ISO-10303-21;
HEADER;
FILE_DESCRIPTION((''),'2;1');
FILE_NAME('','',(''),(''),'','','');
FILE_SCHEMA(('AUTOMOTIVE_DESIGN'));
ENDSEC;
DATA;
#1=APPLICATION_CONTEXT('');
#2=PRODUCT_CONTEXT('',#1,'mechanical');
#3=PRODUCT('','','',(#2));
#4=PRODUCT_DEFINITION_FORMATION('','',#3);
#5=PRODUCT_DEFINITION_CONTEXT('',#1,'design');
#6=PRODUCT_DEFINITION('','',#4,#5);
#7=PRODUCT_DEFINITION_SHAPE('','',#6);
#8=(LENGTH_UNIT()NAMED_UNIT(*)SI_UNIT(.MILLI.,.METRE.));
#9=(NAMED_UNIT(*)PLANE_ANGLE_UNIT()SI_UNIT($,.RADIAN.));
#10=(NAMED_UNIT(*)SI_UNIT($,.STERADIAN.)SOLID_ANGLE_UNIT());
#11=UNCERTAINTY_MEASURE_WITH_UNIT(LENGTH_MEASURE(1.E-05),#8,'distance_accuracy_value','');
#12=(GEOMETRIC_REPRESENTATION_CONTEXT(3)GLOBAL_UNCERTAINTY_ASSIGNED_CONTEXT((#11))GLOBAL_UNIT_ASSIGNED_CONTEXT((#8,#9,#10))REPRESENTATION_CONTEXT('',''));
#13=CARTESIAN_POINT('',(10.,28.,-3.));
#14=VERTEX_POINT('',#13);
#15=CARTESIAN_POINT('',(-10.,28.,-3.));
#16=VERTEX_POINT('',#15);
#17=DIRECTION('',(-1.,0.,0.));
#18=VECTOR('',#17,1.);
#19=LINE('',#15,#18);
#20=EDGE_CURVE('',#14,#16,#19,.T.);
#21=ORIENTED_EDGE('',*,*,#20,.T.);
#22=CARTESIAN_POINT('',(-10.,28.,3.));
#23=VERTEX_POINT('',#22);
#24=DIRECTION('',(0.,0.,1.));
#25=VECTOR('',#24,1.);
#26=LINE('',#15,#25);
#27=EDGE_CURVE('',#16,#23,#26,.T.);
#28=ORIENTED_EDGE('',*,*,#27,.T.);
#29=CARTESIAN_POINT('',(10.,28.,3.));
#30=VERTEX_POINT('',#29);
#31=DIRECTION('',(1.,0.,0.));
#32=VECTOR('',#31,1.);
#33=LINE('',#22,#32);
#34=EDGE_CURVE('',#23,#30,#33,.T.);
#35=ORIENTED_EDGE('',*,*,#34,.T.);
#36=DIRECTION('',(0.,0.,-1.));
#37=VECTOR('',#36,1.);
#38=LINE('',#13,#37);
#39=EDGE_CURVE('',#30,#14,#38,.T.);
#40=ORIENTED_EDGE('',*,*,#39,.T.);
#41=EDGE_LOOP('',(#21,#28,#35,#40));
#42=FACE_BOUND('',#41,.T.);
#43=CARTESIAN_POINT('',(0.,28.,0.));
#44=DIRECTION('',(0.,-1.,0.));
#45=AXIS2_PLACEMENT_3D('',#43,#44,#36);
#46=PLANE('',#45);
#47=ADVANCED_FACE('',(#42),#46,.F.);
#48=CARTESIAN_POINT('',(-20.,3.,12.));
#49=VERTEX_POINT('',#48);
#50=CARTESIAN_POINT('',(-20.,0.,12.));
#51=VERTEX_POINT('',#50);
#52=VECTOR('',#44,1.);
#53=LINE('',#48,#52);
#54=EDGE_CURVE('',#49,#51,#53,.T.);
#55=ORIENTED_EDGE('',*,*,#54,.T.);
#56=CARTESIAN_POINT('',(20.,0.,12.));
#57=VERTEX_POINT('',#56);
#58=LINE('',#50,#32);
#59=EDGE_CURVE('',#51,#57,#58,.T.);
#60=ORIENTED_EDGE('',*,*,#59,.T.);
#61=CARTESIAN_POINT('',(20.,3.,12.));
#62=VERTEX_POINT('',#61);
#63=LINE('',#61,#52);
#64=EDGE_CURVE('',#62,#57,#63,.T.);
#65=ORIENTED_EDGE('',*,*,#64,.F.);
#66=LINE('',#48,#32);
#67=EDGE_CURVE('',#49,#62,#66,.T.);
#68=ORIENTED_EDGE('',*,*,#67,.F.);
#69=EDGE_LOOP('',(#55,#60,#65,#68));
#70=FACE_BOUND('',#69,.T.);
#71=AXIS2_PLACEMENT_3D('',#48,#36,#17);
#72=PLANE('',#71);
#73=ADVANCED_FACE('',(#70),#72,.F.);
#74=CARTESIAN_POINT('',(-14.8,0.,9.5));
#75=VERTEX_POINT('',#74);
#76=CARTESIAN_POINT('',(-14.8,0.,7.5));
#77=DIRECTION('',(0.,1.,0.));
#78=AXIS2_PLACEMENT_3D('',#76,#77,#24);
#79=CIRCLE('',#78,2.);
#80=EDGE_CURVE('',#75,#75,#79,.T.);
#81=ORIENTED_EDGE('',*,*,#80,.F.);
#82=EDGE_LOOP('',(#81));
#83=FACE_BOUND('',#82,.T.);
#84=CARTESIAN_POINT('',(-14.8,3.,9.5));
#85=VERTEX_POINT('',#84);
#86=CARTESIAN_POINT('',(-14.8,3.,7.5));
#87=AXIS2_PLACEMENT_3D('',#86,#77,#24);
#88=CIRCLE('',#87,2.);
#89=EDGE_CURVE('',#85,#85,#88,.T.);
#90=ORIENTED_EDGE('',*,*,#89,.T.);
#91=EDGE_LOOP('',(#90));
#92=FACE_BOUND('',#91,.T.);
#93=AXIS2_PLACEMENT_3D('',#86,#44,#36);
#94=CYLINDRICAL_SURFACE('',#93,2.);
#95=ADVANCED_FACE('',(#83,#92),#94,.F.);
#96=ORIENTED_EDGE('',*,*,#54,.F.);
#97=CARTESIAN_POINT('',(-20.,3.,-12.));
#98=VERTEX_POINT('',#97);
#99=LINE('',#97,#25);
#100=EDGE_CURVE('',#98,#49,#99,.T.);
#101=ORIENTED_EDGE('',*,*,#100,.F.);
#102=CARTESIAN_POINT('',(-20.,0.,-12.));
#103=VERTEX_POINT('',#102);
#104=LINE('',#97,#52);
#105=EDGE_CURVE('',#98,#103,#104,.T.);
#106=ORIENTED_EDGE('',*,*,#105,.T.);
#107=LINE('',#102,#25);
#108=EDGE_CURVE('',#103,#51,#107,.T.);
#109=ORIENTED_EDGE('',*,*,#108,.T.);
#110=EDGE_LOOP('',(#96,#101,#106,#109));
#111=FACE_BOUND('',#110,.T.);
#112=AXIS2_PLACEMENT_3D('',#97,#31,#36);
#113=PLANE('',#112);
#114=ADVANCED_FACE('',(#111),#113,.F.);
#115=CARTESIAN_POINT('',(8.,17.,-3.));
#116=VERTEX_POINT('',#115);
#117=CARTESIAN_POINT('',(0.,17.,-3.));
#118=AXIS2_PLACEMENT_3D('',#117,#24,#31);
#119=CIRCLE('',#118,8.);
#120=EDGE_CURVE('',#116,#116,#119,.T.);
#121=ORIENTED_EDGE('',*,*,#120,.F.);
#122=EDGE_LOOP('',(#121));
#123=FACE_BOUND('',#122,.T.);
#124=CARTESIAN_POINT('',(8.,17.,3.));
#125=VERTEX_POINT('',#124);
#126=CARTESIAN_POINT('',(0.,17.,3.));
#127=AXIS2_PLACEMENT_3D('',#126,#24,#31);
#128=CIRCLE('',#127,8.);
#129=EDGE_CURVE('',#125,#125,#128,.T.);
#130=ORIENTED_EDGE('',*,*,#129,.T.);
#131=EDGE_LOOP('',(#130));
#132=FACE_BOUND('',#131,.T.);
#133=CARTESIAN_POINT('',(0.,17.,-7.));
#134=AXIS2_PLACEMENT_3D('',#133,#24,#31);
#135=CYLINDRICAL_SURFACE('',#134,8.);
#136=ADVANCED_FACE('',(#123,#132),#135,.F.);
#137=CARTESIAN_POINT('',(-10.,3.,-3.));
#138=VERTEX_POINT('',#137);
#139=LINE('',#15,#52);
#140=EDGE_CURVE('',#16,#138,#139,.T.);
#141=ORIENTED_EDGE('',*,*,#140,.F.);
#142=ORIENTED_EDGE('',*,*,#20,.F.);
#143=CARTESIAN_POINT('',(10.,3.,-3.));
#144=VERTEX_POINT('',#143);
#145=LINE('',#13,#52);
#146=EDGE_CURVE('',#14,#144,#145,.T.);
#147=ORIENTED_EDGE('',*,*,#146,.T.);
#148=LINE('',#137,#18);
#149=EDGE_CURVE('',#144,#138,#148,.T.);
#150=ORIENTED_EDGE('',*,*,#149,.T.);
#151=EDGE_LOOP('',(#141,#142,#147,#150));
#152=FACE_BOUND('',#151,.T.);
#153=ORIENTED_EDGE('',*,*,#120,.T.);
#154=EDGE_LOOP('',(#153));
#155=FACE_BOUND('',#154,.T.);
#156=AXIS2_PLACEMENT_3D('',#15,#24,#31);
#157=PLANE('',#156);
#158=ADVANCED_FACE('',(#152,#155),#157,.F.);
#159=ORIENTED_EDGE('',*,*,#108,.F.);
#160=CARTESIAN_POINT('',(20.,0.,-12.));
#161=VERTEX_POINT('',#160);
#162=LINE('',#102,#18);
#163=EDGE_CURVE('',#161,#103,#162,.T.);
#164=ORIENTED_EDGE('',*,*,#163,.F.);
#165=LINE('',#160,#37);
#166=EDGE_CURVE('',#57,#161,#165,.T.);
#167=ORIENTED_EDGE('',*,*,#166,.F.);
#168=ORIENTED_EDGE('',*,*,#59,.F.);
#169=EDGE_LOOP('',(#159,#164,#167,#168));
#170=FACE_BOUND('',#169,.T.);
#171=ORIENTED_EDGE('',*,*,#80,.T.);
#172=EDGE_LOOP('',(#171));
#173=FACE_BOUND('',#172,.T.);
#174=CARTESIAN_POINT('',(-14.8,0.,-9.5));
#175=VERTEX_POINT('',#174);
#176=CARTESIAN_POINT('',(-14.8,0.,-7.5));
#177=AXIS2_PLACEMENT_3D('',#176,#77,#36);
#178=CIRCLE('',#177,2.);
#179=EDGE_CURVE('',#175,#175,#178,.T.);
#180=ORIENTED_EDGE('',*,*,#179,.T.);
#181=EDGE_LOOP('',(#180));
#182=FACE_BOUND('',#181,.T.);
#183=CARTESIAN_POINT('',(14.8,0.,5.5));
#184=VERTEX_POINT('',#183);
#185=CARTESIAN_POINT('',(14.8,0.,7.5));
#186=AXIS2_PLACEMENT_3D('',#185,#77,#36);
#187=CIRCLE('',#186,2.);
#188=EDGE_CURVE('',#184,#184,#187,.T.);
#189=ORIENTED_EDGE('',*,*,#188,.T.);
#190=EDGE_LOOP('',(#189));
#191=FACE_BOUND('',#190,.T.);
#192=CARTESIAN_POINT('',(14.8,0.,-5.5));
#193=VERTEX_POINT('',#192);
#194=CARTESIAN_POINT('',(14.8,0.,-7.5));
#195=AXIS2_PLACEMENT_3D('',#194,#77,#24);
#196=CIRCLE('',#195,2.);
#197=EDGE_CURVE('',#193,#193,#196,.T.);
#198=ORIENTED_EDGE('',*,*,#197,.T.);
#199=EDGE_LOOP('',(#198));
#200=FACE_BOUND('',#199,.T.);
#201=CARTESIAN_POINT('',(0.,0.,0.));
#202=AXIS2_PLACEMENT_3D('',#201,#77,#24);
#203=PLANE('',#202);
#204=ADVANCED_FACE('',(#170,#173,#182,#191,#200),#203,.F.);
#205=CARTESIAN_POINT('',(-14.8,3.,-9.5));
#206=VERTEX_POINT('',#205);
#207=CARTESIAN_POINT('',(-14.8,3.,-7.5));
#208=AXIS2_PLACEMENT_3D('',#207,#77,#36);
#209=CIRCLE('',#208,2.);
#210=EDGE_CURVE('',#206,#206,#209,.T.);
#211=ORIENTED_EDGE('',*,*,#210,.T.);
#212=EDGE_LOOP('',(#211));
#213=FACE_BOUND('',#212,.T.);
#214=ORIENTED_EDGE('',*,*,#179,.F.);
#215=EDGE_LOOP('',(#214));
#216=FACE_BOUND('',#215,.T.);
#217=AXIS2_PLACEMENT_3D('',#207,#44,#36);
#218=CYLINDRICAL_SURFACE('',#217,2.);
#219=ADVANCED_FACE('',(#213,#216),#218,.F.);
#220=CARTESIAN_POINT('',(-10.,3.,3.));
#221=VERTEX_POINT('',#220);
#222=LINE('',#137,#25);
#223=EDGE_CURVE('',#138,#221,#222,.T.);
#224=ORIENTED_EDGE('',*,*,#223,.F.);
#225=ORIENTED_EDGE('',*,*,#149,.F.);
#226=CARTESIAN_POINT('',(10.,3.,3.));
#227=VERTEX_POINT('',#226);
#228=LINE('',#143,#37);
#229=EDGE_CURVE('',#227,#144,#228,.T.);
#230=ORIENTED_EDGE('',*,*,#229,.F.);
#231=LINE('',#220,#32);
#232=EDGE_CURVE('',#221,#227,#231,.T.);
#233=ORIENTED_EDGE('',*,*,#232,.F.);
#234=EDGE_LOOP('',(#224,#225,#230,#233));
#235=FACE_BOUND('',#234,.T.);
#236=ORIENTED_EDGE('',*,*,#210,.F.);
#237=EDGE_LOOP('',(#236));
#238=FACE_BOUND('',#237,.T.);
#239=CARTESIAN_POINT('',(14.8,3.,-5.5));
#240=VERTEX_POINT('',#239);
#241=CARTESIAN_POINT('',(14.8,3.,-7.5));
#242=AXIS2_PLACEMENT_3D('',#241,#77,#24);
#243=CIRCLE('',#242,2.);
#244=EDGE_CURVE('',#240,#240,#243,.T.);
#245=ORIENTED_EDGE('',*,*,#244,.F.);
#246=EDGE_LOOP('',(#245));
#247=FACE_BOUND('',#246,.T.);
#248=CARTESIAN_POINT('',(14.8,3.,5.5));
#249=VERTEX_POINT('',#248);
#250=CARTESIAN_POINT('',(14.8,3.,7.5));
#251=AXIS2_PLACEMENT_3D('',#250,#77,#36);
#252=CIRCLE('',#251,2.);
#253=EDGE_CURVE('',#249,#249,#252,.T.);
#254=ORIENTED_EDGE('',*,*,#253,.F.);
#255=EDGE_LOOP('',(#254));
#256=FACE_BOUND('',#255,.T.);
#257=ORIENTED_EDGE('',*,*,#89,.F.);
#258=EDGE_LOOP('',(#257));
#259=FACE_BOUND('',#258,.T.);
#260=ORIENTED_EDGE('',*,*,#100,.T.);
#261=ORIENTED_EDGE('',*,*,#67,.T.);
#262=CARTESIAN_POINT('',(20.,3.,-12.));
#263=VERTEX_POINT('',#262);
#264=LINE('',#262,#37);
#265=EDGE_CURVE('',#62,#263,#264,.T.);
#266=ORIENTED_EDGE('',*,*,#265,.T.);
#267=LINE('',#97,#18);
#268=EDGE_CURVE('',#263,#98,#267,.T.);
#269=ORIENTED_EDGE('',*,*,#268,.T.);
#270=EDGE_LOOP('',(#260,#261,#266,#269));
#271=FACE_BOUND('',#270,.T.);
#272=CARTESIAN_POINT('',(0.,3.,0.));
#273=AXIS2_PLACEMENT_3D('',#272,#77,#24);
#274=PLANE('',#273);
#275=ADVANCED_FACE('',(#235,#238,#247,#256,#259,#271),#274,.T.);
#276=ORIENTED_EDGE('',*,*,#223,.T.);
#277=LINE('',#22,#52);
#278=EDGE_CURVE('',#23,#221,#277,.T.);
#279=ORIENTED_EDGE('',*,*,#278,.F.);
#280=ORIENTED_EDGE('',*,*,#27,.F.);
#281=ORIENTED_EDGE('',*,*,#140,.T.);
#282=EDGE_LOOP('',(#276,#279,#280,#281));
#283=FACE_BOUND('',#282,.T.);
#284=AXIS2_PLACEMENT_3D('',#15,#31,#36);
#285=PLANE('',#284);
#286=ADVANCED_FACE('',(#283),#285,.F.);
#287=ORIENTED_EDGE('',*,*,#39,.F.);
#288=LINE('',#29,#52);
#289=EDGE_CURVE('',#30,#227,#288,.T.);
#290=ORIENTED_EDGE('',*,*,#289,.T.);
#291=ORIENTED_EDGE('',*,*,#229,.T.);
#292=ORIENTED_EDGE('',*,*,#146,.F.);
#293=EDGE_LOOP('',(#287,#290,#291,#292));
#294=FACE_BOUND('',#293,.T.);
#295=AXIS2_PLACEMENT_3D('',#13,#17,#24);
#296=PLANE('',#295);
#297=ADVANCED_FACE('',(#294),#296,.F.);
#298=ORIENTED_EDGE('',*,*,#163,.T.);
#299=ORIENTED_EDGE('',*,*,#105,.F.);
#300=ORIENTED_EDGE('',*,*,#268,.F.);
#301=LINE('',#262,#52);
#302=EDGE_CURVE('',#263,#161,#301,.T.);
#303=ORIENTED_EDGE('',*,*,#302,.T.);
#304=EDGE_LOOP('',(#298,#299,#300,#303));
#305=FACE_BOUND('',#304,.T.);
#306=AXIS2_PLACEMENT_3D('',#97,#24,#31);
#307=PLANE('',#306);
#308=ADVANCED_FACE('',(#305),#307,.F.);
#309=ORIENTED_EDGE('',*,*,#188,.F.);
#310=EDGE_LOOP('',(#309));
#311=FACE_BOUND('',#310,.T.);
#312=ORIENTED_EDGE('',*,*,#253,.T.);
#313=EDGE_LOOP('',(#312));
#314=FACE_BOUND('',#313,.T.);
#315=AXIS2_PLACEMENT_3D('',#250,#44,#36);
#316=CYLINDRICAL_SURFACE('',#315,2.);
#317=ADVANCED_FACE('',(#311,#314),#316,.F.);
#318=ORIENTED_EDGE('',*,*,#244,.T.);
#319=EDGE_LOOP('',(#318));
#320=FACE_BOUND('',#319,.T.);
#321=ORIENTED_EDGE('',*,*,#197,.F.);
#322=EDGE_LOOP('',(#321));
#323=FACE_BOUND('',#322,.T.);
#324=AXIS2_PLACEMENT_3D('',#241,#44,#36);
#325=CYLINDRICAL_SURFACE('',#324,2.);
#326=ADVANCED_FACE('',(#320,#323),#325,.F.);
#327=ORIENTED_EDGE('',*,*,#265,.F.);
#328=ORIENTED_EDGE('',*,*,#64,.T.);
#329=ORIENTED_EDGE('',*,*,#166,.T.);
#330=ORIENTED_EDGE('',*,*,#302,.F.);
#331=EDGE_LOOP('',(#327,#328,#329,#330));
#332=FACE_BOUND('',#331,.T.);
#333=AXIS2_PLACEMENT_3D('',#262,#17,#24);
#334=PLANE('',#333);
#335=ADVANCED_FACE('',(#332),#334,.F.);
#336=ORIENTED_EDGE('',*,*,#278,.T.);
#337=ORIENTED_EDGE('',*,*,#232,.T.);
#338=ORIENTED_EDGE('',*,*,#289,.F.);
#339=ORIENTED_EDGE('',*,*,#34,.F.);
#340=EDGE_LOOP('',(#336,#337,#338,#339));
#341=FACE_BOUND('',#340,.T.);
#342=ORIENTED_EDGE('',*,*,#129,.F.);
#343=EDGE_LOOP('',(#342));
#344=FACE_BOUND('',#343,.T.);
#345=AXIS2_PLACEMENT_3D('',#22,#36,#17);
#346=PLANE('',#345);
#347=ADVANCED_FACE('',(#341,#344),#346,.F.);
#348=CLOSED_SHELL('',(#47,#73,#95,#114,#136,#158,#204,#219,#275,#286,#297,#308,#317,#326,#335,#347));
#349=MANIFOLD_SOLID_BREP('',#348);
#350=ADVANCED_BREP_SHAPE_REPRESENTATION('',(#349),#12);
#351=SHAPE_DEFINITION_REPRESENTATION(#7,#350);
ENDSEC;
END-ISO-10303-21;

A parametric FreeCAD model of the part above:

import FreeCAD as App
import Part
import Sketcher

doc = App.newDocument("Part")
body = doc.addObject("PartDesign::Body", "Body")

sketch1 = body.newObject("Sketcher::SketchObject", "Sketch")
sketch1.AttachmentSupport = (doc.getObject("XZ_Plane"), [""])
sketch1.MapMode = "FlatFace"
sketch1.addGeometry(Part.LineSegment(App.Vector(-20, -12, 0), App.Vector(-20, 12, 0)), False)
sketch1.addGeometry(Part.LineSegment(App.Vector(-20, 12, 0), App.Vector(20, 12, 0)), False)
sketch1.addGeometry(Part.LineSegment(App.Vector(20, 12, 0), App.Vector(20, -12, 0)), False)
sketch1.addGeometry(Part.LineSegment(App.Vector(20, -12, 0), App.Vector(-20, -12, 0)), False)
sketch1.addGeometry(Part.Circle(App.Vector(-14.8, 7.5, 0), App.Vector(0, 0, 1), 2), False)
sketch1.addGeometry(Part.Circle(App.Vector(14.8, 7.5, 0), App.Vector(0, 0, 1), 2), False)
sketch1.addGeometry(Part.Circle(App.Vector(-14.8, -7.5, 0), App.Vector(0, 0, 1), 2), False)
sketch1.addGeometry(Part.Circle(App.Vector(14.8, -7.5, 0), App.Vector(0, 0, 1), 2), False)
sketch1.addConstraint(Sketcher.Constraint("Coincident", 0, 2, 1, 1))
sketch1.addConstraint(Sketcher.Constraint("Coincident", 1, 2, 2, 1))
sketch1.addConstraint(Sketcher.Constraint("Coincident", 2, 2, 3, 1))
sketch1.addConstraint(Sketcher.Constraint("Coincident", 3, 2, 0, 1))
sketch1.addConstraint(Sketcher.Constraint("Vertical", 0))
sketch1.addConstraint(Sketcher.Constraint("Horizontal", 1))
sketch1.addConstraint(Sketcher.Constraint("Vertical", 2))
sketch1.addConstraint(Sketcher.Constraint("Horizontal", 3))
sketch1.addConstraint(Sketcher.Constraint("Equal", 4, 5))
sketch1.addConstraint(Sketcher.Constraint("Equal", 5, 6))
sketch1.addConstraint(Sketcher.Constraint("Equal", 6, 7))
sketch1.addConstraint(Sketcher.Constraint("Symmetric", 5, 3, 6, 3, -1, 1))
sketch1.addConstraint(Sketcher.Constraint("Symmetric", 4, 3, 7, 3, -1, 1))
sketch1.addConstraint(Sketcher.Constraint("Symmetric", 0, 2, 2, 2, -1, 1))
sketch1.addConstraint(Sketcher.Constraint("Symmetric", 4, 3, 5, 3, -2))
sketch1.addConstraint(Sketcher.Constraint("Diameter", 4, 4.0))
sketch1.addConstraint(Sketcher.Constraint("DistanceX", 1, 1, 1, 2, 40.0))
sketch1.addConstraint(Sketcher.Constraint("DistanceY", 0, 1, 0, 2, 24.0))
sketch1.addConstraint(Sketcher.Constraint("DistanceY", 6, 3, 4, 3, 15.0))
sketch1.addConstraint(Sketcher.Constraint("DistanceX", 4, 3, -1, 1, 14.8))
pad1 = body.newObject("PartDesign::Pad", "Pad")
pad1.Profile = sketch1
pad1.Length = 3
pad1.Reversed = True

sketch2 = body.newObject("Sketcher::SketchObject", "Sketch001")
sketch2.AttachmentSupport = (doc.getObject("XZ_Plane"), [""])
sketch2.MapMode = "FlatFace"
sketch2.AttachmentOffset = App.Placement(App.Vector(0, 0, -3), App.Rotation())
sketch2.addGeometry(Part.LineSegment(App.Vector(-10, -3, 0), App.Vector(-10, 3, 0)), False)
sketch2.addGeometry(Part.LineSegment(App.Vector(-10, 3, 0), App.Vector(10, 3, 0)), False)
sketch2.addGeometry(Part.LineSegment(App.Vector(10, 3, 0), App.Vector(10, -3, 0)), False)
sketch2.addGeometry(Part.LineSegment(App.Vector(10, -3, 0), App.Vector(-10, -3, 0)), False)
sketch2.addConstraint(Sketcher.Constraint("Coincident", 0, 2, 1, 1))
sketch2.addConstraint(Sketcher.Constraint("Coincident", 1, 2, 2, 1))
sketch2.addConstraint(Sketcher.Constraint("Coincident", 2, 2, 3, 1))
sketch2.addConstraint(Sketcher.Constraint("Coincident", 3, 2, 0, 1))
sketch2.addConstraint(Sketcher.Constraint("Vertical", 0))
sketch2.addConstraint(Sketcher.Constraint("Horizontal", 1))
sketch2.addConstraint(Sketcher.Constraint("Vertical", 2))
sketch2.addConstraint(Sketcher.Constraint("Horizontal", 3))
sketch2.addConstraint(Sketcher.Constraint("Symmetric", 0, 2, 2, 2, -1, 1))
sketch2.addConstraint(Sketcher.Constraint("DistanceX", 1, 1, 1, 2, 20.0))
sketch2.addConstraint(Sketcher.Constraint("DistanceY", 0, 1, 0, 2, 6.0))
pad2 = body.newObject("PartDesign::Pad", "Pad001")
pad2.Profile = sketch2
pad2.Length = 25
pad2.Reversed = True

sketch3 = body.newObject("Sketcher::SketchObject", "Sketch002")
sketch3.AttachmentSupport = (doc.getObject("XY_Plane"), [""])
sketch3.MapMode = "FlatFace"
sketch3.AttachmentOffset = App.Placement(App.Vector(0, 0, 3), App.Rotation())
sketch3.addGeometry(Part.Circle(App.Vector(0, 17, 0), App.Vector(0, 0, 1), 8), False)
sketch3.addConstraint(Sketcher.Constraint("PointOnObject", 0, 3, -2))
sketch3.addConstraint(Sketcher.Constraint("Diameter", 0, 16.0))
sketch3.addConstraint(Sketcher.Constraint("DistanceY", -1, 1, 0, 3, 17.0))
pocket1 = body.newObject("PartDesign::Pocket", "Pocket")
pocket1.Profile = sketch3
pocket1.Length = 10

doc.recompute()
